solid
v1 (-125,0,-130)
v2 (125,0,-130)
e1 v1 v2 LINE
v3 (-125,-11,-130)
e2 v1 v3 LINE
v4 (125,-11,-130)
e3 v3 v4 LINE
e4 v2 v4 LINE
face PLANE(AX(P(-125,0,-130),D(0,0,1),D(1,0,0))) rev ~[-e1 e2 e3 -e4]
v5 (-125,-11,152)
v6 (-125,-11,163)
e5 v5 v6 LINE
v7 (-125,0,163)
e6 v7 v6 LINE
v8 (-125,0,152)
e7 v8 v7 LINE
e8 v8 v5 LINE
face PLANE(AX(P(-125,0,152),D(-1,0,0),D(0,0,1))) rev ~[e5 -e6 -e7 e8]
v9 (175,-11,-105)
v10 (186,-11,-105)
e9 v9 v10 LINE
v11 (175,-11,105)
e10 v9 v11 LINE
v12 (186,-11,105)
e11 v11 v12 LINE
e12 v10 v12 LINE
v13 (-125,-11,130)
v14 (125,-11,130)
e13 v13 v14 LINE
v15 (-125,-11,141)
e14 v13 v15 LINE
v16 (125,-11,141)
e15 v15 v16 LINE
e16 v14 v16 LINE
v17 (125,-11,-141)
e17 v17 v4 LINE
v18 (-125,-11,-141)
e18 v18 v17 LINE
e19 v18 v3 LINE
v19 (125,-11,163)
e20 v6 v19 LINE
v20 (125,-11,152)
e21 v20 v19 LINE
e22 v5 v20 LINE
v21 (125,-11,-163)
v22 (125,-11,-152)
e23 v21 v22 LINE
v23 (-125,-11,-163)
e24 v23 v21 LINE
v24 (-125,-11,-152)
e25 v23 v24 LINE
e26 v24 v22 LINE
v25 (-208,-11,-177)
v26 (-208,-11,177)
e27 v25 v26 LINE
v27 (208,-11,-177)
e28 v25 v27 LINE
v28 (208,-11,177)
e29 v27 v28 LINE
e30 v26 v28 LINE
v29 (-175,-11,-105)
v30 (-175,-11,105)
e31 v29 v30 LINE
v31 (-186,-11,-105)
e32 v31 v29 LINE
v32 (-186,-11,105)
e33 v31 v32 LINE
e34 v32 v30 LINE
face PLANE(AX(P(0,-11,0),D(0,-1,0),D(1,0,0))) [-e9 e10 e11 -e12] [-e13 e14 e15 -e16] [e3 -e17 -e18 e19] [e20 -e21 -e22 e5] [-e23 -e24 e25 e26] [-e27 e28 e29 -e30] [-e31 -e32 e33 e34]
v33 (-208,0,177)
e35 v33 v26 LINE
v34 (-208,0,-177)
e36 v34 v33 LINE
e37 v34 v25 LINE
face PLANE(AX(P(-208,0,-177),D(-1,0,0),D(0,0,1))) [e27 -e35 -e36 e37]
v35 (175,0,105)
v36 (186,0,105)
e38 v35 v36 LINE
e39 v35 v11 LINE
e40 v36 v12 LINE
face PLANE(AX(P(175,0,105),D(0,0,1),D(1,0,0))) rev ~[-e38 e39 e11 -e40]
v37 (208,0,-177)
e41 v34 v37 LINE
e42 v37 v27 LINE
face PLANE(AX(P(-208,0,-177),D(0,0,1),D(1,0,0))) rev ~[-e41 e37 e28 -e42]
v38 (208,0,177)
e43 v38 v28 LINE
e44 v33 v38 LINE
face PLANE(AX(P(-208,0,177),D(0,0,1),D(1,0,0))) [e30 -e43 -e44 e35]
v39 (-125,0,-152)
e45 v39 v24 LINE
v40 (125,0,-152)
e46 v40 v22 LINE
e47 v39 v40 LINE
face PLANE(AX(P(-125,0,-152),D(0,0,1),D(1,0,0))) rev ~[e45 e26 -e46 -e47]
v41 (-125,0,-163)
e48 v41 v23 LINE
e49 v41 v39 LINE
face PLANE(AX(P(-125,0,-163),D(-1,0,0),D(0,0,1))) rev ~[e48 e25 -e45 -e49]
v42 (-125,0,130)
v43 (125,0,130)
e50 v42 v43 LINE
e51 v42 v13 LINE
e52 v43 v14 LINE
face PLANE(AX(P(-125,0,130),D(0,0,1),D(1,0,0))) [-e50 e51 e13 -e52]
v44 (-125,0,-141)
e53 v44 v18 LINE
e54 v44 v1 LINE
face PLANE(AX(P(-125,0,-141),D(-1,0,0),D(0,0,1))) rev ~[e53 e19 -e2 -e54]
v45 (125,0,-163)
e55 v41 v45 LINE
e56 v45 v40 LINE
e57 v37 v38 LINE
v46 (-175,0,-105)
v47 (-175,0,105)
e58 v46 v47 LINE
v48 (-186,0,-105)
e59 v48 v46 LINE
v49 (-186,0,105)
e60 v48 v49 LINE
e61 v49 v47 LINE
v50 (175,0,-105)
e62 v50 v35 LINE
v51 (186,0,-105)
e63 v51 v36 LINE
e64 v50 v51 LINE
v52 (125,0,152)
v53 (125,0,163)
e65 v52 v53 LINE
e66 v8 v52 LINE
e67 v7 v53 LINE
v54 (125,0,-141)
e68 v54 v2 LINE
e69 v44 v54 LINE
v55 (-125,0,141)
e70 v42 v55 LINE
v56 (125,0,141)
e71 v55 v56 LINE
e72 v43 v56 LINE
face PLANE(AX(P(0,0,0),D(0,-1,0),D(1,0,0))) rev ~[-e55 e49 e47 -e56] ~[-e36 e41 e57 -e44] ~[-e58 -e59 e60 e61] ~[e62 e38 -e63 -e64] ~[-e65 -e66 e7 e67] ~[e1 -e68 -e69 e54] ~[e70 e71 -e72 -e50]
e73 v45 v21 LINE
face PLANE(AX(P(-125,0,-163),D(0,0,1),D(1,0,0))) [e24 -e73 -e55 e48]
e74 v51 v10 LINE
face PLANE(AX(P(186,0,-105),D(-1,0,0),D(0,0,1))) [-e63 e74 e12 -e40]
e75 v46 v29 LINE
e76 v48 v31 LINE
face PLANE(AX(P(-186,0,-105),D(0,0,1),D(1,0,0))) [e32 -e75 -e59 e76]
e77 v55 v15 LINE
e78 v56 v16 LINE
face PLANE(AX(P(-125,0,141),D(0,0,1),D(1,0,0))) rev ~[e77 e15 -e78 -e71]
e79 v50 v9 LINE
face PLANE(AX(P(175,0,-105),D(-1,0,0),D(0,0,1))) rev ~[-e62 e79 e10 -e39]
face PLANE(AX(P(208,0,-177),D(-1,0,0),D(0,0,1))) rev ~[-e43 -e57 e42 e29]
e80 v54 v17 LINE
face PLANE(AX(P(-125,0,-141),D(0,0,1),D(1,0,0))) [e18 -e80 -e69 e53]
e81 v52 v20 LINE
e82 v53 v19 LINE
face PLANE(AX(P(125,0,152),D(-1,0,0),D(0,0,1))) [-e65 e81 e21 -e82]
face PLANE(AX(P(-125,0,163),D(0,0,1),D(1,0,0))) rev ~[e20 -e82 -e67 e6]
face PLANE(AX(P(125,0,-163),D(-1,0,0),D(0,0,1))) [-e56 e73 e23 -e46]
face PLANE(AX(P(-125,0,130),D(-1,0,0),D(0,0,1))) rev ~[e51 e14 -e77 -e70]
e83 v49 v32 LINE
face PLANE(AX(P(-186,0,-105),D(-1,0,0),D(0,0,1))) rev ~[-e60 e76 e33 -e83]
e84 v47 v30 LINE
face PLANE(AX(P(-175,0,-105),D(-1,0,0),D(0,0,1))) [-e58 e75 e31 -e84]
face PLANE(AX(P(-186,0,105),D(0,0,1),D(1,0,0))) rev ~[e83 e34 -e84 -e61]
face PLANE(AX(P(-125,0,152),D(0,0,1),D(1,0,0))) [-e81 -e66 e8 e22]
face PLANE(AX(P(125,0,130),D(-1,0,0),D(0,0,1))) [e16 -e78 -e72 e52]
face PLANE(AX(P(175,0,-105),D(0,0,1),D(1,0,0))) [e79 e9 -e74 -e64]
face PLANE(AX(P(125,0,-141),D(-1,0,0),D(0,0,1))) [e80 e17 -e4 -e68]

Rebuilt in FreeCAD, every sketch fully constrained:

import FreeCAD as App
import Part
import Sketcher


def add_polygon(sketch, points):
    """Adds a closed chain of lines whose ends are joined by coincident constraints."""
    first, n = sketch.GeometryCount, len(points)
    for a, b in zip(points, points[1:] + points[:1]):
        sketch.addGeometry(Part.LineSegment(App.Vector(*a, 0), App.Vector(*b, 0)), False)
    for i in range(n):
        sketch.addConstraint(Sketcher.Constraint("Coincident", first + i, 2, first + (i + 1) % n, 1))

doc = App.newDocument("Part")
body = doc.addObject("PartDesign::Body", "Body")

# Sketch on XZ plane
sketch1 = doc.addObject("Sketcher::SketchObject", "Sketch")
body.addObject(sketch1)
sketch1.AttachmentSupport = (doc.XZ_Plane, [""])
sketch1.MapMode = "FlatFace"
add_polygon(sketch1, [(-208, 177), (-208, -177), (208, -177), (208, 177)])  # lines 0-3
add_polygon(sketch1, [(125, -163), (-125, -163), (-125, -152), (125, -152)])  # lines 4-7
add_polygon(sketch1, [(125, -141), (-125, -141), (-125, -130), (125, -130)])  # lines 8-11
add_polygon(sketch1, [(-175, -105), (-186, -105), (-186, 105), (-175, 105)])  # lines 12-15
add_polygon(sketch1, [(186, -105), (175, -105), (175, 105), (186, 105)])  # lines 16-19
add_polygon(sketch1, [(125, 130), (-125, 130), (-125, 141), (125, 141)])  # lines 20-23
add_polygon(sketch1, [(125, 152), (-125, 152), (-125, 163), (125, 163)])  # lines 24-27
sketch1.addConstraint([
    Sketcher.Constraint("Vertical", 0),
    Sketcher.Constraint("Horizontal", 1),
    Sketcher.Constraint("Vertical", 2),
    Sketcher.Constraint("Horizontal", 3),
    Sketcher.Constraint("Horizontal", 4),
    Sketcher.Constraint("Vertical", 5),
    Sketcher.Constraint("Horizontal", 6),
    Sketcher.Constraint("Vertical", 7),
    Sketcher.Constraint("Horizontal", 8),
    Sketcher.Constraint("Vertical", 9),
    Sketcher.Constraint("Horizontal", 10),
    Sketcher.Constraint("Vertical", 11),
    Sketcher.Constraint("Horizontal", 12),
    Sketcher.Constraint("Vertical", 13),
    Sketcher.Constraint("Horizontal", 14),
    Sketcher.Constraint("Vertical", 15),
    Sketcher.Constraint("Horizontal", 16),
    Sketcher.Constraint("Vertical", 17),
    Sketcher.Constraint("Horizontal", 18),
    Sketcher.Constraint("Vertical", 19),
    Sketcher.Constraint("Horizontal", 20),
    Sketcher.Constraint("Vertical", 21),
    Sketcher.Constraint("Horizontal", 22),
    Sketcher.Constraint("Vertical", 23),
    Sketcher.Constraint("Horizontal", 24),
    Sketcher.Constraint("Vertical", 25),
    Sketcher.Constraint("Horizontal", 26),
    Sketcher.Constraint("Vertical", 27),
    Sketcher.Constraint("Symmetric", 0, 2, 2, 2, -1, 1),
    Sketcher.Constraint("Symmetric", 14, 2, 16, 2, -1, 1),
    Sketcher.Constraint("Symmetric", 12, 2, 18, 2, -1, 1),
    Sketcher.Constraint("Symmetric", 10, 2, 20, 2, -1, 1),
    Sketcher.Constraint("Symmetric", 8, 2, 22, 2, -1, 1),
    Sketcher.Constraint("Symmetric", 6, 2, 24, 2, -1, 1),
    Sketcher.Constraint("Symmetric", 4, 2, 26, 2, -1, 1),
    Sketcher.Constraint("Horizontal", 15, 2, 16, 2),
    Sketcher.Constraint("Vertical", 5, 2, 8, 2),
    Sketcher.Constraint("Vertical", 7, 2, 10, 2),
    Sketcher.Constraint("Vertical", 9, 2, 20, 2),
    Sketcher.Constraint("Equal", 18, 5),
    Sketcher.Constraint("Equal", 7, 9),
    Sketcher.Constraint("DistanceX", 1, 1, 1, 2, 416.0),
    Sketcher.Constraint("DistanceX", 4, 2, 4, 1, 250.0),
    Sketcher.Constraint("DistanceX", 12, 2, 12, 1, 11.0),
    Sketcher.Constraint("DistanceY", 0, 2, 0, 1, 354.0),
    Sketcher.Constraint("DistanceY", 13, 1, 13, 2, 210.0),
    Sketcher.Constraint("DistanceY", 4, 2, -1, 1, 163.0),
    Sketcher.Constraint("DistanceY", 8, 2, -1, 1, 141.0),
    Sketcher.Constraint("DistanceX", 12, 2, -1, 1, 186.0),
])
pad1 = doc.addObject("PartDesign::Pad", "Pad")
body.addObject(pad1)
pad1.Profile = sketch1
pad1.Length = 11

doc.recompute()
